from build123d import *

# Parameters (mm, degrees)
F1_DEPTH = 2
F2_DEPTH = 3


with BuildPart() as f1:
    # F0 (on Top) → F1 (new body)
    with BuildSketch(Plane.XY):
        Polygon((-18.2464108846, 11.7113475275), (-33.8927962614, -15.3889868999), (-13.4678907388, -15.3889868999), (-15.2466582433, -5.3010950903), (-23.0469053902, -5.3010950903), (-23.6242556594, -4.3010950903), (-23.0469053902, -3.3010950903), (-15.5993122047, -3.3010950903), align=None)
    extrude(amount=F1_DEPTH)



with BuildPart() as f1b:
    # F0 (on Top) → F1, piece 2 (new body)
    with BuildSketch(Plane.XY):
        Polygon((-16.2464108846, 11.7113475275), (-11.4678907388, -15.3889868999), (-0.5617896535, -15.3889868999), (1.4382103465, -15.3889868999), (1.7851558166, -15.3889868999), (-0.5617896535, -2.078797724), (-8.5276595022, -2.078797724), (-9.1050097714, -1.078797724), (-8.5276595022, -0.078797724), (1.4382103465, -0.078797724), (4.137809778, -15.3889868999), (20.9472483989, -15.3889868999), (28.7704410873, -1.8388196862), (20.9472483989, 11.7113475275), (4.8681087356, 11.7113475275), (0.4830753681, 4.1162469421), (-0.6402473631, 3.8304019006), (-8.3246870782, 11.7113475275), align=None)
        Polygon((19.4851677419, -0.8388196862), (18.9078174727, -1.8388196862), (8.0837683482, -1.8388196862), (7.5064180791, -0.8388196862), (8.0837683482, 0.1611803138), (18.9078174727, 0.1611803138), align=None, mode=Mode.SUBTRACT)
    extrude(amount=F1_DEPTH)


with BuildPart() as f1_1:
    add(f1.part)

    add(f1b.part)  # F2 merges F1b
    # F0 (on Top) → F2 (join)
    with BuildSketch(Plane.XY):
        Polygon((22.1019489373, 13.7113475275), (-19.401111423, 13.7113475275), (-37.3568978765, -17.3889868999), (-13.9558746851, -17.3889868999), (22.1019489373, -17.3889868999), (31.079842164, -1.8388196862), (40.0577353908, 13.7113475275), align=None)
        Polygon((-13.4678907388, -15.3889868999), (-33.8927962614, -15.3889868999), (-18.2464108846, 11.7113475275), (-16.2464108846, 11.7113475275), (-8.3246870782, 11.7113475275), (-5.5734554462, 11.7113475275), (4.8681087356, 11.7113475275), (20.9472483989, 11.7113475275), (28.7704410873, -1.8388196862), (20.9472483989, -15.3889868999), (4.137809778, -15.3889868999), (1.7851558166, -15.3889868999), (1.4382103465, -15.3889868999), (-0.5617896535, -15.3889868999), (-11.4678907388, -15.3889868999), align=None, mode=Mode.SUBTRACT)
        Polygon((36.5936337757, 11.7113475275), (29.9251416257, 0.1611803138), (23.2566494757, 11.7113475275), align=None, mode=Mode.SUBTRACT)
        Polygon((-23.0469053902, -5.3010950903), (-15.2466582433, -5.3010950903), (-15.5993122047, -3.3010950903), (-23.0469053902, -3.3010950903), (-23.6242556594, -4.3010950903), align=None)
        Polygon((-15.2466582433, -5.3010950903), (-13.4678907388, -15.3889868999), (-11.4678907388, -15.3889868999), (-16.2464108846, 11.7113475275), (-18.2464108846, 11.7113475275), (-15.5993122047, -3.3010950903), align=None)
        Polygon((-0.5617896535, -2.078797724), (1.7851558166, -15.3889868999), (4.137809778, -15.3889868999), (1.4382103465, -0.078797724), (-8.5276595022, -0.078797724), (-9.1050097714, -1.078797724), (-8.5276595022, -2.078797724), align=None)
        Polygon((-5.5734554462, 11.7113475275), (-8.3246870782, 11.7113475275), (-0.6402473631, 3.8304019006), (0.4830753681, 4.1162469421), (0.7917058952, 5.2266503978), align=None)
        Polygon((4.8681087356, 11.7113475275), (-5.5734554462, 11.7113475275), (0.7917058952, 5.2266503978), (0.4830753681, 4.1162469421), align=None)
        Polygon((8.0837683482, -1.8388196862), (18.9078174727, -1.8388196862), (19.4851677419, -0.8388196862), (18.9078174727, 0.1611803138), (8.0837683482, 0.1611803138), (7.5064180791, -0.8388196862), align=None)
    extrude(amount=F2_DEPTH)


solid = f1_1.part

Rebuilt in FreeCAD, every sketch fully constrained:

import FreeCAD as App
import Part
import Sketcher

V = App.Vector
Q = App.Units.Quantity

doc = App.newDocument("Part")
body = doc.addObject("PartDesign::Body", "Body")

# Sketch on XY plane
sketch1 = doc.addObject("Sketcher::SketchObject", "Sketch")
body.addObject(sketch1)
sketch1.AttachmentSupport = (doc.XY_Plane, [""])
sketch1.MapMode = "FlatFace"
sketch1.addGeometry(Part.LineSegment(V(-18.246411, 11.711348, 0), V(-33.892796, -15.388987, 0)), False)
sketch1.addGeometry(Part.LineSegment(V(-33.892796, -15.388987, 0), V(-13.467891, -15.388987, 0)), False)
sketch1.addGeometry(Part.LineSegment(V(-13.467891, -15.388987, 0), V(-15.246658, -5.301095, 0)), False)
sketch1.addGeometry(Part.LineSegment(V(-15.246658, -5.301095, 0), V(-23.046905, -5.301095, 0)), False)
sketch1.addGeometry(Part.LineSegment(V(-23.046905, -5.301095, 0), V(-23.624256, -4.301095, 0)), False)
sketch1.addGeometry(Part.LineSegment(V(-23.624256, -4.301095, 0), V(-23.046905, -3.301095, 0)), False)
sketch1.addGeometry(Part.LineSegment(V(-23.046905, -3.301095, 0), V(-15.599312, -3.301095, 0)), False)
sketch1.addGeometry(Part.LineSegment(V(-15.599312, -3.301095, 0), V(-18.246411, 11.711348, 0)), False)
sketch1.addConstraint(Sketcher.Constraint("Coincident", 0, 2, 1, 1))
sketch1.addConstraint(Sketcher.Constraint("Coincident", 1, 2, 2, 1))
sketch1.addConstraint(Sketcher.Constraint("Coincident", 2, 2, 3, 1))
sketch1.addConstraint(Sketcher.Constraint("Coincident", 3, 2, 4, 1))
sketch1.addConstraint(Sketcher.Constraint("Coincident", 4, 2, 5, 1))
sketch1.addConstraint(Sketcher.Constraint("Coincident", 5, 2, 6, 1))
sketch1.addConstraint(Sketcher.Constraint("Coincident", 6, 2, 7, 1))
sketch1.addConstraint(Sketcher.Constraint("Coincident", 7, 2, 0, 1))
sketch1.addConstraint(Sketcher.Constraint("Horizontal", 1))
sketch1.addConstraint(Sketcher.Constraint("Horizontal", 3))
sketch1.addConstraint(Sketcher.Constraint("Horizontal", 6))
sketch1.addConstraint(Sketcher.Constraint("Parallel", 0, 5))
sketch1.addConstraint(Sketcher.Constraint("Parallel", 2, 7))
sketch1.addConstraint(Sketcher.Constraint("Vertical", 3, 2, 5, 2))
sketch1.addConstraint(Sketcher.Constraint("Equal", 4, 5))
sketch1.addConstraint(Sketcher.Constraint("Angle", 0, Q("-120 deg")))
sketch1.addConstraint(Sketcher.Constraint("Angle", 2, Q("100 deg")))
sketch1.addConstraint(Sketcher.Constraint("DistanceY", 3, 2, 4, 2, 1.0))
sketch1.addConstraint(Sketcher.Constraint("DistanceX", 7, 2, 6, 2, 2.647099))
sketch1.addConstraint(Sketcher.Constraint("Distance", 0, 31.292771))
sketch1.addConstraint(Sketcher.Constraint("DistanceX", 1, 1, 1, 2, 20.424906))
sketch1.addConstraint(Sketcher.Constraint("DistanceX", 3, 2, 3, 1, 7.800247))
sketch1.addConstraint(Sketcher.Constraint("DistanceX", 1, 2, -1, 1, 13.467891))
sketch1.addConstraint(Sketcher.Constraint("DistanceY", 0, 2, -1, 1, 15.388987))
pad1 = doc.addObject("PartDesign::Pad", "Pad")
body.addObject(pad1)
pad1.Profile = sketch1
pad1.Length = 2
body2 = doc.addObject("PartDesign::Body", "Body001")

# Sketch on XY plane
sketch2 = doc.addObject("Sketcher::SketchObject", "Sketch001")
body2.addObject(sketch2)
sketch2.AttachmentSupport = (doc.getObject("XY_Plane001"), [""])
sketch2.MapMode = "FlatFace"
sketch2.addGeometry(Part.LineSegment(V(-16.246411, 11.711348, 0), V(-11.467891, -15.388987, 0)), False)
sketch2.addGeometry(Part.LineSegment(V(-11.467891, -15.388987, 0), V(1.785156, -15.388987, 0)), False)
sketch2.addGeometry(Part.LineSegment(V(1.785156, -15.388987, 0), V(-0.56179, -2.078798, 0)), False)
sketch2.addGeometry(Part.LineSegment(V(-0.56179, -2.078798, 0), V(-8.52766, -2.078798, 0)), False)
sketch2.addGeometry(Part.LineSegment(V(-8.52766, -2.078798, 0), V(-9.10501, -1.078798, 0)), False)
sketch2.addGeometry(Part.LineSegment(V(-9.10501, -1.078798, 0), V(-8.52766, -0.078798, 0)), False)
sketch2.addGeometry(Part.LineSegment(V(-8.52766, -0.078798, 0), V(1.43821, -0.078798, 0)), False)
sketch2.addGeometry(Part.LineSegment(V(1.43821, -0.078798, 0), V(4.13781, -15.388987, 0)), False)
sketch2.addGeometry(Part.LineSegment(V(4.13781, -15.388987, 0), V(20.947248, -15.388987, 0)), False)
sketch2.addGeometry(Part.LineSegment(V(20.947248, -15.388987, 0), V(28.770441, -1.83882, 0)), False)
sketch2.addGeometry(Part.LineSegment(V(28.770441, -1.83882, 0), V(20.947248, 11.711348, 0)), False)
sketch2.addGeometry(Part.LineSegment(V(20.947248, 11.711348, 0), V(4.868109, 11.711348, 0)), False)
sketch2.addGeometry(Part.LineSegment(V(4.868109, 11.711348, 0), V(0.483075, 4.116247, 0)), False)
sketch2.addGeometry(Part.LineSegment(V(0.483075, 4.116247, 0), V(-0.640247, 3.830402, 0)), False)
sketch2.addGeometry(Part.LineSegment(V(-0.640247, 3.830402, 0), V(-8.324687, 11.711348, 0)), False)
sketch2.addGeometry(Part.LineSegment(V(-8.324687, 11.711348, 0), V(-16.246411, 11.711348, 0)), False)
sketch2.addGeometry(Part.LineSegment(V(18.907817, 0.16118, 0), V(19.485168, -0.83882, 0)), False)
sketch2.addGeometry(Part.LineSegment(V(19.485168, -0.83882, 0), V(18.907817, -1.83882, 0)), False)
sketch2.addGeometry(Part.LineSegment(V(18.907817, -1.83882, 0), V(8.083768, -1.83882, 0)), False)
sketch2.addGeometry(Part.LineSegment(V(8.083768, -1.83882, 0), V(7.506418, -0.83882, 0)), False)
sketch2.addGeometry(Part.LineSegment(V(7.506418, -0.83882, 0), V(8.083768, 0.16118, 0)), False)
sketch2.addGeometry(Part.LineSegment(V(8.083768, 0.16118, 0), V(18.907817, 0.16118, 0)), False)
sketch2.addConstraint(Sketcher.Constraint("Coincident", 0, 2, 1, 1))
sketch2.addConstraint(Sketcher.Constraint("Coincident", 1, 2, 2, 1))
sketch2.addConstraint(Sketcher.Constraint("Coincident", 2, 2, 3, 1))
sketch2.addConstraint(Sketcher.Constraint("Coincident", 3, 2, 4, 1))
sketch2.addConstraint(Sketcher.Constraint("Coincident", 4, 2, 5, 1))
sketch2.addConstraint(Sketcher.Constraint("Coincident", 5, 2, 6, 1))
sketch2.addConstraint(Sketcher.Constraint("Coincident", 6, 2, 7, 1))
sketch2.addConstraint(Sketcher.Constraint("Coincident", 7, 2, 8, 1))
sketch2.addConstraint(Sketcher.Constraint("Coincident", 8, 2, 9, 1))
sketch2.addConstraint(Sketcher.Constraint("Coincident", 9, 2, 10, 1))
sketch2.addConstraint(Sketcher.Constraint("Coincident", 10, 2, 11, 1))
sketch2.addConstraint(Sketcher.Constraint("Coincident", 11, 2, 12, 1))
sketch2.addConstraint(Sketcher.Constraint("Coincident", 12, 2, 13, 1))
sketch2.addConstraint(Sketcher.Constraint("Coincident", 13, 2, 14, 1))
sketch2.addConstraint(Sketcher.Constraint("Coincident", 14, 2, 15, 1))
sketch2.addConstraint(Sketcher.Constraint("Coincident", 15, 2, 0, 1))
sketch2.addConstraint(Sketcher.Constraint("Coincident", 16, 2, 17, 1))
sketch2.addConstraint(Sketcher.Constraint("Coincident", 17, 2, 18, 1))
sketch2.addConstraint(Sketcher.Constraint("Coincident", 18, 2, 19, 1))
sketch2.addConstraint(Sketcher.Constraint("Coincident", 19, 2, 20, 1))
sketch2.addConstraint(Sketcher.Constraint("Coincident", 20, 2, 21, 1))
sketch2.addConstraint(Sketcher.Constraint("Coincident", 21, 2, 16, 1))
sketch2.addConstraint(Sketcher.Constraint("Horizontal", 1))
sketch2.addConstraint(Sketcher.Constraint("Horizontal", 3))
sketch2.addConstraint(Sketcher.Constraint("Horizontal", 6))
sketch2.addConstraint(Sketcher.Constraint("Horizontal", 8))
sketch2.addConstraint(Sketcher.Constraint("Horizontal", 11))
sketch2.addConstraint(Sketcher.Constraint("Horizontal", 15))
sketch2.addConstraint(Sketcher.Constraint("Horizontal", 18))
sketch2.addConstraint(Sketcher.Constraint("Horizontal", 21))
sketch2.addConstraint(Sketcher.Constraint("Parallel", 0, 2))
sketch2.addConstraint(Sketcher.Constraint("Parallel", 2, 7))
sketch2.addConstraint(Sketcher.Constraint("Parallel", 5, 9))
sketch2.addConstraint(Sketcher.Constraint("Parallel", 4, 10))
sketch2.addConstraint(Sketcher.Constraint("Parallel", 9, 12))
sketch2.addConstraint(Sketcher.Constraint("Parallel", 10, 16))
sketch2.addConstraint(Sketcher.Constraint("Parallel", 12, 17))
sketch2.addConstraint(Sketcher.Constraint("Parallel", 16, 19))
sketch2.addConstraint(Sketcher.Constraint("Parallel", 17, 20))
sketch2.addConstraint(Sketcher.Constraint("Horizontal", 1, 2, 7, 2))
sketch2.addConstraint(Sketcher.Constraint("Horizontal", 11, 2, 14, 2))
sketch2.addConstraint(Sketcher.Constraint("Horizontal", 9, 2, 17, 2))
sketch2.addConstraint(Sketcher.Constraint("Horizontal", 16, 2, 19, 2))
sketch2.addConstraint(Sketcher.Constraint("Vertical", 3, 2, 5, 2))
sketch2.addConstraint(Sketcher.Constraint("Vertical", 8, 2, 10, 2))
sketch2.addConstraint(Sketcher.Constraint("Vertical", 18, 2, 20, 2))
sketch2.addConstraint(Sketcher.Constraint("Vertical", 17, 2, 21, 2))
sketch2.addConstraint(Sketcher.Constraint("Equal", 5, 16))
sketch2.addConstraint(Sketcher.Constraint("Angle", 0, Q("-80 deg")))
sketch2.addConstraint(Sketcher.Constraint("Angle", 4, Q("120 deg")))
sketch2.addConstraint(Sketcher.Constraint("DistanceY", 3, 2, 4, 2, 1.0))
sketch2.addConstraint(Sketcher.Constraint("DistanceX", 2, 2, 6, 2, 2.0))
sketch2.addConstraint(Sketcher.Constraint("Distance", 0, 27.518401))
sketch2.addConstraint(Sketcher.Constraint("DistanceX", 3, 2, 3, 1, 7.96587))
sketch2.addConstraint(Sketcher.Constraint("DistanceX", 8, 1, 8, 2, 16.809439))
sketch2.addConstraint(Sketcher.Constraint("DistanceX", 11, 2, 11, 1, 16.07914))
sketch2.addConstraint(Sketcher.Constraint("DistanceX", 18, 2, 18, 1, 10.824049))
sketch2.addConstraint(Sketcher.Constraint("DistanceY", -1, 1, 13, 2, 3.830402))
sketch2.addConstraint(Sketcher.Constraint("DistanceX", 0, 2, 2, 2, 10.906101))
sketch2.addConstraint(Sketcher.Constraint("DistanceX", 2, 2, 7, 2, 4.699599))
sketch2.addConstraint(Sketcher.Constraint("DistanceY", 12, 2, 11, 2, 7.595101))
sketch2.addConstraint(Sketcher.Constraint("DistanceY", 6, 2, 13, 2, 3.9092))
sketch2.addConstraint(Sketcher.Constraint("Distance", 13, 1.159121))
sketch2.addConstraint(Sketcher.Constraint("DistanceX", 15, 2, 15, 1, 7.921724))
sketch2.addConstraint(Sketcher.Constraint("DistanceX", 0, 2, -1, 1, 11.467891))
sketch2.addConstraint(Sketcher.Constraint("DistanceX", -1, 1, 18, 2, 8.083768))
pad2 = doc.addObject("PartDesign::Pad", "Pad001")
body2.addObject(pad2)
pad2.Profile = sketch2
pad2.Length = 2
body.AllowCompound = True
doc.recompute()

boolean = doc.addObject("PartDesign::Boolean", "Boolean")
body.addObject(boolean)
boolean.Type = "Fuse"
boolean.addObjects([body2])

# Sketch on XY plane
sketch3 = doc.addObject("Sketcher::SketchObject", "Sketch002")
body.addObject(sketch3)
sketch3.AttachmentSupport = (doc.XY_Plane, [""])
sketch3.MapMode = "FlatFace"
sketch3.addGeometry(Part.LineSegment(V(-19.401111, 13.711348, 0), V(-37.356898, -17.388987, 0)), False)
sketch3.addGeometry(Part.LineSegment(V(-37.356898, -17.388987, 0), V(22.101949, -17.388987, 0)), False)
sketch3.addGeometry(Part.LineSegment(V(22.101949, -17.388987, 0), V(31.079842, -1.83882, 0)), False)
sketch3.addGeometry(Part.LineSegment(V(31.079842, -1.83882, 0), V(40.057735, 13.711348, 0)), False)
sketch3.addGeometry(Part.LineSegment(V(40.057735, 13.711348, 0), V(-19.401111, 13.711348, 0)), False)
sketch3.addGeometry(Part.LineSegment(V(20.947248, -15.388987, 0), V(4.13781, -15.388987, 0)), False)
sketch3.addGeometry(Part.LineSegment(V(4.13781, -15.388987, 0), V(1.43821, -0.078798, 0)), False)
sketch3.addGeometry(Part.LineSegment(V(1.43821, -0.078798, 0), V(-8.52766, -0.078798, 0)), False)
sketch3.addGeometry(Part.LineSegment(V(-8.52766, -0.078798, 0), V(-9.10501, -1.078798, 0)), False)
sketch3.addGeometry(Part.LineSegment(V(-9.10501, -1.078798, 0), V(-8.52766, -2.078798, 0)), False)
sketch3.addGeometry(Part.LineSegment(V(-8.52766, -2.078798, 0), V(-0.56179, -2.078798, 0)), False)
sketch3.addGeometry(Part.LineSegment(V(-0.56179, -2.078798, 0), V(1.785156, -15.388987, 0)), False)
sketch3.addGeometry(Part.LineSegment(V(1.785156, -15.388987, 0), V(-11.467891, -15.388987, 0)), False)
sketch3.addGeometry(Part.LineSegment(V(-11.467891, -15.388987, 0), V(-16.246411, 11.711348, 0)), False)
sketch3.addGeometry(Part.LineSegment(V(-16.246411, 11.711348, 0), V(-8.324687, 11.711348, 0)), False)
sketch3.addGeometry(Part.LineSegment(V(-8.324687, 11.711348, 0), V(-0.640247, 3.830402, 0)), False)
sketch3.addGeometry(Part.LineSegment(V(-0.640247, 3.830402, 0), V(0.483075, 4.116247, 0)), False)
sketch3.addGeometry(Part.LineSegment(V(0.483075, 4.116247, 0), V(4.868109, 11.711348, 0)), False)
sketch3.addGeometry(Part.LineSegment(V(4.868109, 11.711348, 0), V(20.947248, 11.711348, 0)), False)
sketch3.addGeometry(Part.LineSegment(V(20.947248, 11.711348, 0), V(28.770441, -1.83882, 0)), False)
sketch3.addGeometry(Part.LineSegment(V(28.770441, -1.83882, 0), V(20.947248, -15.388987, 0)), False)
sketch3.addGeometry(Part.LineSegment(V(-13.467891, -15.388987, 0), V(-33.892796, -15.388987, 0)), False)
sketch3.addGeometry(Part.LineSegment(V(-33.892796, -15.388987, 0), V(-18.246411, 11.711348, 0)), False)
sketch3.addGeometry(Part.LineSegment(V(-18.246411, 11.711348, 0), V(-15.599312, -3.301095, 0)), False)
sketch3.addGeometry(Part.LineSegment(V(-15.599312, -3.301095, 0), V(-23.046905, -3.301095, 0)), False)
sketch3.addGeometry(Part.LineSegment(V(-23.046905, -3.301095, 0), V(-23.624256, -4.301095, 0)), False)
sketch3.addGeometry(Part.LineSegment(V(-23.624256, -4.301095, 0), V(-23.046905, -5.301095, 0)), False)
sketch3.addGeometry(Part.LineSegment(V(-23.046905, -5.301095, 0), V(-15.246658, -5.301095, 0)), False)
sketch3.addGeometry(Part.LineSegment(V(-15.246658, -5.301095, 0), V(-13.467891, -15.388987, 0)), False)
sketch3.addGeometry(Part.LineSegment(V(23.256649, 11.711348, 0), V(36.593634, 11.711348, 0)), False)
sketch3.addGeometry(Part.LineSegment(V(36.593634, 11.711348, 0), V(29.925142, 0.16118, 0)), False)
sketch3.addGeometry(Part.LineSegment(V(29.925142, 0.16118, 0), V(23.256649, 11.711348, 0)), False)
sketch3.addGeometry(Part.LineSegment(V(8.083768, -1.83882, 0), V(18.907817, -1.83882, 0)), False)
sketch3.addGeometry(Part.LineSegment(V(18.907817, -1.83882, 0), V(19.485168, -0.83882, 0)), False)
sketch3.addGeometry(Part.LineSegment(V(19.485168, -0.83882, 0), V(18.907817, 0.16118, 0)), False)
sketch3.addGeometry(Part.LineSegment(V(18.907817, 0.16118, 0), V(8.083768, 0.16118, 0)), False)
sketch3.addGeometry(Part.LineSegment(V(8.083768, 0.16118, 0), V(7.506418, -0.83882, 0)), False)
sketch3.addGeometry(Part.LineSegment(V(7.506418, -0.83882, 0), V(8.083768, -1.83882, 0)), False)
sketch3.addConstraint(Sketcher.Constraint("Coincident", 0, 2, 1, 1))
sketch3.addConstraint(Sketcher.Constraint("Coincident", 1, 2, 2, 1))
sketch3.addConstraint(Sketcher.Constraint("Coincident", 2, 2, 3, 1))
sketch3.addConstraint(Sketcher.Constraint("Coincident", 3, 2, 4, 1))
sketch3.addConstraint(Sketcher.Constraint("Coincident", 4, 2, 0, 1))
sketch3.addConstraint(Sketcher.Constraint("Coincident", 5, 2, 6, 1))
sketch3.addConstraint(Sketcher.Constraint("Coincident", 6, 2, 7, 1))
sketch3.addConstraint(Sketcher.Constraint("Coincident", 7, 2, 8, 1))
sketch3.addConstraint(Sketcher.Constraint("Coincident", 8, 2, 9, 1))
sketch3.addConstraint(Sketcher.Constraint("Coincident", 9, 2, 10, 1))
sketch3.addConstraint(Sketcher.Constraint("Coincident", 10, 2, 11, 1))
sketch3.addConstraint(Sketcher.Constraint("Coincident", 11, 2, 12, 1))
sketch3.addConstraint(Sketcher.Constraint("Coincident", 12, 2, 13, 1))
sketch3.addConstraint(Sketcher.Constraint("Coincident", 13, 2, 14, 1))
sketch3.addConstraint(Sketcher.Constraint("Coincident", 14, 2, 15, 1))
sketch3.addConstraint(Sketcher.Constraint("Coincident", 15, 2, 16, 1))
sketch3.addConstraint(Sketcher.Constraint("Coincident", 16, 2, 17, 1))
sketch3.addConstraint(Sketcher.Constraint("Coincident", 17, 2, 18, 1))
sketch3.addConstraint(Sketcher.Constraint("Coincident", 18, 2, 19, 1))
sketch3.addConstraint(Sketcher.Constraint("Coincident", 19, 2, 20, 1))
sketch3.addConstraint(Sketcher.Constraint("Coincident", 20, 2, 5, 1))
sketch3.addConstraint(Sketcher.Constraint("Coincident", 21, 2, 22, 1))
sketch3.addConstraint(Sketcher.Constraint("Coincident", 22, 2, 23, 1))
sketch3.addConstraint(Sketcher.Constraint("Coincident", 23, 2, 24, 1))
sketch3.addConstraint(Sketcher.Constraint("Coincident", 24, 2, 25, 1))
sketch3.addConstraint(Sketcher.Constraint("Coincident", 25, 2, 26, 1))
sketch3.addConstraint(Sketcher.Constraint("Coincident", 26, 2, 27, 1))
sketch3.addConstraint(Sketcher.Constraint("Coincident", 27, 2, 28, 1))
sketch3.addConstraint(Sketcher.Constraint("Coincident", 28, 2, 21, 1))
sketch3.addConstraint(Sketcher.Constraint("Coincident", 29, 2, 30, 1))
sketch3.addConstraint(Sketcher.Constraint("Coincident", 30, 2, 31, 1))
sketch3.addConstraint(Sketcher.Constraint("Coincident", 31, 2, 29, 1))
sketch3.addConstraint(Sketcher.Constraint("Coincident", 32, 2, 33, 1))
sketch3.addConstraint(Sketcher.Constraint("Coincident", 33, 2, 34, 1))
sketch3.addConstraint(Sketcher.Constraint("Coincident", 34, 2, 35, 1))
sketch3.addConstraint(Sketcher.Constraint("Coincident", 35, 2, 36, 1))
sketch3.addConstraint(Sketcher.Constraint("Coincident", 36, 2, 37, 1))
sketch3.addConstraint(Sketcher.Constraint("Coincident", 37, 2, 32, 1))
sketch3.addConstraint(Sketcher.Constraint("Horizontal", 1))
sketch3.addConstraint(Sketcher.Constraint("Horizontal", 4))
sketch3.addConstraint(Sketcher.Constraint("Horizontal", 5))
sketch3.addConstraint(Sketcher.Constraint("Horizontal", 7))
sketch3.addConstraint(Sketcher.Constraint("Horizontal", 10))
sketch3.addConstraint(Sketcher.Constraint("Horizontal", 12))
sketch3.addConstraint(Sketcher.Constraint("Horizontal", 14))
sketch3.addConstraint(Sketcher.Constraint("Horizontal", 18))
sketch3.addConstraint(Sketcher.Constraint("Horizontal", 21))
sketch3.addConstraint(Sketcher.Constraint("Horizontal", 24))
sketch3.addConstraint(Sketcher.Constraint("Horizontal", 27))
sketch3.addConstraint(Sketcher.Constraint("Horizontal", 29))
sketch3.addConstraint(Sketcher.Constraint("Horizontal", 32))
sketch3.addConstraint(Sketcher.Constraint("Horizontal", 35))
sketch3.addConstraint(Sketcher.Constraint("Parallel", 0, 2))
sketch3.addConstraint(Sketcher.Constraint("Parallel", 2, 3))
sketch3.addConstraint(Sketcher.Constraint("Parallel", 3, 8))
sketch3.addConstraint(Sketcher.Constraint("Parallel", 6, 11))
sketch3.addConstraint(Sketcher.Constraint("Parallel", 11, 13))
sketch3.addConstraint(Sketcher.Constraint("Parallel", 8, 17))
sketch3.addConstraint(Sketcher.Constraint("Parallel", 9, 19))
sketch3.addConstraint(Sketcher.Constraint("Parallel", 17, 20))
sketch3.addConstraint(Sketcher.Constraint("Parallel", 20, 22))
sketch3.addConstraint(Sketcher.Constraint("Parallel", 13, 23))
sketch3.addConstraint(Sketcher.Constraint("Parallel", 22, 25))
sketch3.addConstraint(Sketcher.Constraint("Parallel", 19, 26))
sketch3.addConstraint(Sketcher.Constraint("Parallel", 23, 28))
sketch3.addConstraint(Sketcher.Constraint("Parallel", 25, 30))
sketch3.addConstraint(Sketcher.Constraint("Parallel", 26, 31))
sketch3.addConstraint(Sketcher.Constraint("Parallel", 30, 33))
sketch3.addConstraint(Sketcher.Constraint("Parallel", 31, 34))
sketch3.addConstraint(Sketcher.Constraint("Parallel", 33, 36))
sketch3.addConstraint(Sketcher.Constraint("Parallel", 34, 37))
sketch3.addConstraint(Sketcher.Constraint("Horizontal", 5, 2, 11, 2))
sketch3.addConstraint(Sketcher.Constraint("Horizontal", 14, 2, 17, 2))
sketch3.addConstraint(Sketcher.Constraint("Horizontal", 2, 2, 19, 2))
sketch3.addConstraint(Sketcher.Constraint("Horizontal", 20, 2, 21, 2))
sketch3.addConstraint(Sketcher.Constraint("Horizontal", 18, 2, 22, 2))
sketch3.addConstraint(Sketcher.Constraint("Horizontal", 22, 2, 29, 2))
sketch3.addConstraint(Sketcher.Constraint("Horizontal", 19, 2, 32, 2))
sketch3.addConstraint(Sketcher.Constraint("Horizontal", 30, 2, 34, 2))
sketch3.addConstraint(Sketcher.Constraint("Horizontal", 33, 2, 36, 2))
sketch3.addConstraint(Sketcher.Constraint("Vertical", 7, 2, 9, 2))
sketch3.addConstraint(Sketcher.Constraint("Vertical", 18, 2, 20, 2))
sketch3.addConstraint(Sketcher.Constraint("Vertical", 24, 2, 26, 2))
sketch3.addConstraint(Sketcher.Constraint("Vertical", 32, 2, 34, 2))
sketch3.addConstraint(Sketcher.Constraint("Vertical", 35, 2, 37, 2))
sketch3.addConstraint(Sketcher.Constraint("Equal", 2, 3))
sketch3.addConstraint(Sketcher.Constraint("Equal", 9, 25))
sketch3.addConstraint(Sketcher.Constraint("Equal", 26, 33))
sketch3.addConstraint(Sketcher.Constraint("Angle", 0, Q("-120 deg")))
sketch3.addConstraint(Sketcher.Constraint("Angle", 6, Q("100 deg")))
sketch3.addConstraint(Sketcher.Constraint("DistanceY", 1, 2, 5, 2, 2.0))
sketch3.addConstraint(Sketcher.Constraint("DistanceY", 8, 2, 7, 2, 1.0))
sketch3.addConstraint(Sketcher.Constraint("DistanceX", 10, 2, 6, 2, 2.0))
sketch3.addConstraint(Sketcher.Constraint("DistanceX", 22, 2, 13, 2, 2.0))
sketch3.addConstraint(Sketcher.Constraint("DistanceX", 28, 2, 12, 2, 2.0))
sketch3.addConstraint(Sketcher.Constraint("DistanceX", 27, 2, 9, 2, 6.718999))
sketch3.addConstraint(Sketcher.Constraint("Distance", 13, 27.518401))
sketch3.addConstraint(Sketcher.Constraint("DistanceX", 5, 2, 5, 1, 16.809439))
sketch3.addConstraint(Sketcher.Constraint("DistanceX", 7, 2, 7, 1, 9.96587))
sketch3.addConstraint(Sketcher.Constraint("DistanceX", 18, 1, 18, 2, 16.07914))
sketch3.addConstraint(Sketcher.Constraint("DistanceX", 32, 1, 32, 2, 10.824049))
sketch3.addConstraint(Sketcher.Constraint("DistanceY", -1, 1, 15, 2, 3.830402))
sketch3.addConstraint(Sketcher.Constraint("DistanceX", 6, 2, 5, 2, 2.699599))
sketch3.addConstraint(Sketcher.Constraint("DistanceX", 4, 2, 8, 2, 10.296102))
sketch3.addConstraint(Sketcher.Constraint("DistanceX", 12, 2, 5, 2, 15.605701))
sketch3.addConstraint(Sketcher.Constraint("DistanceY", 6, 2, 15, 2, 3.9092))
sketch3.addConstraint(Sketcher.Constraint("DistanceY", 16, 2, 17, 2, 7.595101))
sketch3.addConstraint(Sketcher.Constraint("DistanceX", 19, 2, 2, 2, 2.309401))
sketch3.addConstraint(Sketcher.Constraint("DistanceX", 29, 2, 3, 2, 3.464102))
sketch3.addConstraint(Sketcher.Constraint("Distance", 16, 1.159121))
sketch3.addConstraint(Sketcher.Constraint("DistanceX", 14, 1, 14, 2, 7.921724))
sketch3.addConstraint(Sketcher.Constraint("DistanceX", 24, 2, 24, 1, 7.447593))
sketch3.addConstraint(Sketcher.Constraint("DistanceX", -1, 1, 1, 2, 22.101949))
sketch3.addConstraint(Sketcher.Constraint("DistanceX", -1, 1, 35, 2, 8.083768))
pad3 = doc.addObject("PartDesign::Pad", "Pad002")
body.addObject(pad3)
pad3.Profile = sketch3
pad3.Length = 3

doc.recompute()
